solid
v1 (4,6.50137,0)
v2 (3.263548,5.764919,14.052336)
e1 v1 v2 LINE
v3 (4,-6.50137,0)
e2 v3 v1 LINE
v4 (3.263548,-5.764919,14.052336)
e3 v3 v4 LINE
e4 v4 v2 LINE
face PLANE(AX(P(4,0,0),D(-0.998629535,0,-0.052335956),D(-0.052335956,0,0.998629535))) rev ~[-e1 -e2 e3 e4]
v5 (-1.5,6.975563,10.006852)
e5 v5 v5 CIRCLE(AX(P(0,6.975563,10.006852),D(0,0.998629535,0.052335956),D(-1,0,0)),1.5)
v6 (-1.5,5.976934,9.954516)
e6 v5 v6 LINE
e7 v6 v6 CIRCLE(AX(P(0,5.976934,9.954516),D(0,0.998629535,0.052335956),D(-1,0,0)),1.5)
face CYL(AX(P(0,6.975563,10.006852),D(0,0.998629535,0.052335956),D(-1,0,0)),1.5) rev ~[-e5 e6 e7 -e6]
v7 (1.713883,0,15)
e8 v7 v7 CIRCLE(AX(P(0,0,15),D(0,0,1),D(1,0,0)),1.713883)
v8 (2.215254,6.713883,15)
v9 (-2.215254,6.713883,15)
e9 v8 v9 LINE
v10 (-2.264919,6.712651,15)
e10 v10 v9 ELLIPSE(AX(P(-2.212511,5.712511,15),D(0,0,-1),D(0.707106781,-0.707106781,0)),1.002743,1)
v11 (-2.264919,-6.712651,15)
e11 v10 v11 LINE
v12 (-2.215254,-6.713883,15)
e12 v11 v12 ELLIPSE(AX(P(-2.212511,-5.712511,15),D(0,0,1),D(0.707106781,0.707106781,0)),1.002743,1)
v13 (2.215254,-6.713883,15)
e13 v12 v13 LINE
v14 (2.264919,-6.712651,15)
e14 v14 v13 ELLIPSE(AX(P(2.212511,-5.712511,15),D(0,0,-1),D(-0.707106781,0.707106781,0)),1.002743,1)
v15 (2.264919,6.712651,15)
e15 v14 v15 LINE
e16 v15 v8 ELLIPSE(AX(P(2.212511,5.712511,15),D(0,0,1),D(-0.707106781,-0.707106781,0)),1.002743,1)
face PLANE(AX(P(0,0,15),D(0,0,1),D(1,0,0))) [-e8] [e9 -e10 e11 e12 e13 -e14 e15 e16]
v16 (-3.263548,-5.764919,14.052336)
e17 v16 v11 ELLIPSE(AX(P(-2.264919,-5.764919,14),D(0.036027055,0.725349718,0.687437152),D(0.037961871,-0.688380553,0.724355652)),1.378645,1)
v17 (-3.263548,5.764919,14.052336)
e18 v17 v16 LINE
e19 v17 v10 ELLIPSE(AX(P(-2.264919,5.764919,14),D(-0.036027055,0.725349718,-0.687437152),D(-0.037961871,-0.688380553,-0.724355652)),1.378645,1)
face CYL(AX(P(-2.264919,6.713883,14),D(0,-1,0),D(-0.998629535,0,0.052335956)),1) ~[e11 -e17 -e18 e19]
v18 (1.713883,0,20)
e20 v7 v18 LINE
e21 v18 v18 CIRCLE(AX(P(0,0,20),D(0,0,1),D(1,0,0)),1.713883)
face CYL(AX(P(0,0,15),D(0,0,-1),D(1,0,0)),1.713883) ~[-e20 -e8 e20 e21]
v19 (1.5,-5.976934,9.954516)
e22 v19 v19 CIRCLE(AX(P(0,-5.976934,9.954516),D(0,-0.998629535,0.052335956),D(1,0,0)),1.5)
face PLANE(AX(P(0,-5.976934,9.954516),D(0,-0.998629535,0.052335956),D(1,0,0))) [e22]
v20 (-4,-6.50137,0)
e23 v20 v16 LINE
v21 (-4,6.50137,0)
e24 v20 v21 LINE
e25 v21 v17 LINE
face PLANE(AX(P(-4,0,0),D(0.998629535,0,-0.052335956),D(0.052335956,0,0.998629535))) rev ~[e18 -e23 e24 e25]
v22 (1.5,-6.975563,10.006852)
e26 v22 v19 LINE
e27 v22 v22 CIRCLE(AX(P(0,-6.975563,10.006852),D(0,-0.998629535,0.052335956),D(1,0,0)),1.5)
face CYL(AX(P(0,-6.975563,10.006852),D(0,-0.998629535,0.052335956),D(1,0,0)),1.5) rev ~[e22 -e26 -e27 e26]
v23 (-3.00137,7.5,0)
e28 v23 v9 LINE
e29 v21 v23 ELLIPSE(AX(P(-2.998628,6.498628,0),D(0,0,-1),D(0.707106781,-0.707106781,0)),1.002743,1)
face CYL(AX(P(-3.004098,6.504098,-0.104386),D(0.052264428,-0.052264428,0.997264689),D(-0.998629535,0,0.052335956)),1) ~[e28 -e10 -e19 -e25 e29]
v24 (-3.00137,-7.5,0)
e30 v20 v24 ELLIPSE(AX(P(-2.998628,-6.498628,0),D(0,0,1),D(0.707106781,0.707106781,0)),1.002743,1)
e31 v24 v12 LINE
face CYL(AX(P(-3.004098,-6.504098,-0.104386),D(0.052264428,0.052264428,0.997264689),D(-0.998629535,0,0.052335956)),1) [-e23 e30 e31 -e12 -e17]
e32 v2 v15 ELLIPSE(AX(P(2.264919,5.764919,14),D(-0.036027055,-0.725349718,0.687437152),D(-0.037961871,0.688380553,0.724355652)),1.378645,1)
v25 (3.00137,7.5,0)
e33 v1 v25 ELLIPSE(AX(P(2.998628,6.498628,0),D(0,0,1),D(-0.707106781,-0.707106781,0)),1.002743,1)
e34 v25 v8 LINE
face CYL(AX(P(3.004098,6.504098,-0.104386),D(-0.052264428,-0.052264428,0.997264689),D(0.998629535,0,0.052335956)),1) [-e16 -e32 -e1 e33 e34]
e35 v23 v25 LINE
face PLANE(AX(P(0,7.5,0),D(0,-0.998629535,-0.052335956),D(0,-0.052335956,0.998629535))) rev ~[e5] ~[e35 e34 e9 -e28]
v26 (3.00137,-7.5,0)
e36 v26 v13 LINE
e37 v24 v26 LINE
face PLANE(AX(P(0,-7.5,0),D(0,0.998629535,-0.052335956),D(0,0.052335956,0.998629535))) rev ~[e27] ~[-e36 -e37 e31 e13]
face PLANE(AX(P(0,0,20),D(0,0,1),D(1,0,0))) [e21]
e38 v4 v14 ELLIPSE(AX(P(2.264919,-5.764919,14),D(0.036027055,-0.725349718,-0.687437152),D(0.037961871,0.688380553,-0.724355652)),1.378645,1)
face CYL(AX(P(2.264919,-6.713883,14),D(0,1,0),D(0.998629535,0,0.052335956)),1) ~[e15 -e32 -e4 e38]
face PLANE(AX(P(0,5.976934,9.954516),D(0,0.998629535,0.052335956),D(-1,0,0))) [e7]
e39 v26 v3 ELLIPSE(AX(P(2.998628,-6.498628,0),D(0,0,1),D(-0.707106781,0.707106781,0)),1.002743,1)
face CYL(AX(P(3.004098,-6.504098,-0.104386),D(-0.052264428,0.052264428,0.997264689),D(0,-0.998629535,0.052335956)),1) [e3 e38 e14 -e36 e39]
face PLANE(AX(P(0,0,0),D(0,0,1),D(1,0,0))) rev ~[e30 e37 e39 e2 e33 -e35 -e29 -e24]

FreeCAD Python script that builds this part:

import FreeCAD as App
import Part
import Sketcher
Q = App.Units.Quantity


def edges_at(feature, points):
    """Names of the edges that pass closest to the given points."""
    edges = feature.Shape.Edges
    near = lambda p: min(range(len(edges)), key=lambda i: edges[i].distToShape(Part.Vertex(*p))[0])
    return sorted({f"Edge{near(p) + 1}" for p in points})

doc = App.newDocument("Part")
body = doc.addObject("PartDesign::Body", "Body")

# Sketch on XY plane
sketch1 = body.newObject("Sketcher::SketchObject", "Sketch")
sketch1.AttachmentSupport = (doc.getObject("XY_Plane"), [""])
sketch1.MapMode = "FlatFace"
sketch1.addGeometry(Part.LineSegment(App.Vector(-4, 7.5, 0), App.Vector(-4, -7.5, 0)), False)
sketch1.addGeometry(Part.LineSegment(App.Vector(-4, -7.5, 0), App.Vector(4, -7.5, 0)), False)
sketch1.addGeometry(Part.LineSegment(App.Vector(4, -7.5, 0), App.Vector(4, 7.5, 0)), False)
sketch1.addGeometry(Part.LineSegment(App.Vector(4, 7.5, 0), App.Vector(-4, 7.5, 0)), False)
sketch1.addConstraint(Sketcher.Constraint("Coincident", 0, 2, 1, 1))
sketch1.addConstraint(Sketcher.Constraint("Coincident", 1, 2, 2, 1))
sketch1.addConstraint(Sketcher.Constraint("Coincident", 2, 2, 3, 1))
sketch1.addConstraint(Sketcher.Constraint("Coincident", 3, 2, 0, 1))
sketch1.addConstraint(Sketcher.Constraint("Vertical", 0))
sketch1.addConstraint(Sketcher.Constraint("Horizontal", 1))
sketch1.addConstraint(Sketcher.Constraint("Vertical", 2))
sketch1.addConstraint(Sketcher.Constraint("Horizontal", 3))
sketch1.addConstraint(Sketcher.Constraint("Symmetric", 0, 2, 2, 2, -1, 1))
sketch1.addConstraint(Sketcher.Constraint("DistanceX", 1, 1, 1, 2, Q("8 mm")))
sketch1.addConstraint(Sketcher.Constraint("DistanceY", 0, 2, 0, 1, Q("15 mm")))
pad1 = body.newObject("PartDesign::Pad", "Pad")
pad1.Profile = sketch1
pad1.Length = 15
pad1.TaperAngle = -3

# Sketch on XY plane
sketch2 = body.newObject("Sketcher::SketchObject", "Sketch001")
sketch2.AttachmentSupport = (doc.getObject("XY_Plane"), [""])
sketch2.MapMode = "FlatFace"
sketch2.AttachmentOffset = App.Placement(App.Vector(0, 0, 15), App.Rotation())
sketch2.addGeometry(Part.Circle(App.Vector(0, 0, 0), App.Vector(0, 0, 1), 1.713883), False)
sketch2.addConstraint(Sketcher.Constraint("Coincident", 0, 3, -1, 1))
sketch2.addConstraint(Sketcher.Constraint("Diameter", 0, Q("3.427767 mm")))
pad2 = body.newObject("PartDesign::Pad", "Pad001")
pad2.Profile = sketch2
pad2.Length = 5

# Sketch on an angled plane
sketch3 = body.newObject("Sketcher::SketchObject", "Sketch002")
sketch3.Placement = App.Placement(App.Vector(0, 7.479457, 0.391982), App.Rotation(App.Vector(-1, 0, 0), App.Vector(0, -0.052335956, 0.998629535), App.Vector(0, 0.998629535, 0.052335956), "ZXY"))
sketch3.addGeometry(Part.Circle(App.Vector(0, 9.628066, 0), App.Vector(0, 0, 1), 1.5), False)
sketch3.addConstraint(Sketcher.Constraint("PointOnObject", 0, 3, -2))
sketch3.addConstraint(Sketcher.Constraint("Diameter", 0, Q("3 mm")))
sketch3.addConstraint(Sketcher.Constraint("DistanceY", -1, 1, 0, 3, Q("9.628066 mm")))
pocket1 = body.newObject("PartDesign::Pocket", "Pocket")
pocket1.Profile = sketch3
pocket1.Length = 1

# Sketch on an angled plane
sketch4 = body.newObject("Sketcher::SketchObject", "Sketch003")
sketch4.Placement = App.Placement(App.Vector(0, -7.479457, 0.391982), App.Rotation(App.Vector(1, 0, 0), App.Vector(0, 0.052335956, 0.998629535), App.Vector(0, -0.998629535, 0.052335956), "ZXY"))
sketch4.addGeometry(Part.Circle(App.Vector(0, 9.628066, 0), App.Vector(0, 0, 1), 1.5), False)
sketch4.addConstraint(Sketcher.Constraint("PointOnObject", 0, 3, -2))
sketch4.addConstraint(Sketcher.Constraint("Diameter", 0, Q("3 mm")))
sketch4.addConstraint(Sketcher.Constraint("DistanceY", -1, 1, 0, 3, Q("9.628066 mm")))
pocket2 = body.newObject("PartDesign::Pocket", "Pocket001")
pocket2.Profile = sketch4
pocket2.Length = 1
doc.recompute()

fillet = body.newObject("PartDesign::Fillet", "Fillet")
fillet.Base = (pocket2, edges_at(pocket2, [
    (-3.214, 0, 15),
    (-3.607, 7.107, 7.5),
    (-3.607, -7.107, 7.5),
    (3.214, 0, 15),
    (3.607, -7.107, 7.5),
    (3.607, 7.107, 7.5),
]))
fillet.Radius = 1

doc.recompute()
